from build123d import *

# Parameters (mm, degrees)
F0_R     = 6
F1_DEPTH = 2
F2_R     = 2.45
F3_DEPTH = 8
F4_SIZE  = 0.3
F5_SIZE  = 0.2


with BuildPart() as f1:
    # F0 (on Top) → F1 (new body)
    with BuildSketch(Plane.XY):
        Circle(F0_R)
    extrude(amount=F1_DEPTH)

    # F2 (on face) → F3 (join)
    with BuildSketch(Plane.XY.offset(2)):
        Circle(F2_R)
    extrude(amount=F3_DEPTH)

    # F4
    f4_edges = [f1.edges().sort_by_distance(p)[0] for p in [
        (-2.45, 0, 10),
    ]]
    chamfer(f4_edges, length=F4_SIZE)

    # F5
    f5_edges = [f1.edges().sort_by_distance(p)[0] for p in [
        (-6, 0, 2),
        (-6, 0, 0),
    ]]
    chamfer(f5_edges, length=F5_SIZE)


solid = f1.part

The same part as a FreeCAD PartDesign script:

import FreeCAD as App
import Part
import Sketcher
Q = App.Units.Quantity


def edges_at(feature, points):
    """Names of the edges that pass closest to the given points."""
    edges = feature.Shape.Edges
    near = lambda p: min(range(len(edges)), key=lambda i: edges[i].distToShape(Part.Vertex(*p))[0])
    return sorted({f"Edge{near(p) + 1}" for p in points})

doc = App.newDocument("Part")
body = doc.addObject("PartDesign::Body", "Body")

sketch1 = doc.addObject("Sketcher::SketchObject", "Sketch")
body.addObject(sketch1)
sketch1.AttachmentSupport = (doc.XY_Plane, [""])
sketch1.MapMode = "FlatFace"
sketch1.addGeometry(Part.Circle(App.Vector(0, 0, 0), App.Vector(0, 0, 1), 6), False)
sketch1.addConstraint([
    Sketcher.Constraint("Coincident", 0, 3, -1, 1),
    Sketcher.Constraint("Diameter", 0, Q("12 mm")),
])
pad1 = doc.addObject("PartDesign::Pad", "Pad")
body.addObject(pad1)
pad1.Profile = sketch1
pad1.Length = 2

sketch2 = doc.addObject("Sketcher::SketchObject", "Sketch001")
body.addObject(sketch2)
sketch2.AttachmentSupport = (doc.XY_Plane, [""])
sketch2.MapMode = "FlatFace"
sketch2.AttachmentOffset = App.Placement(App.Vector(0, 0, 2), App.Rotation())
sketch2.addGeometry(Part.Circle(App.Vector(0, 0, 0), App.Vector(0, 0, 1), 2.5), False)
sketch2.addConstraint([
    Sketcher.Constraint("Coincident", 0, 3, -1, 1),
    Sketcher.Constraint("Diameter", 0, Q("4.9 mm")),
])
pad2 = doc.addObject("PartDesign::Pad", "Pad001")
body.addObject(pad2)
pad2.Profile = sketch2
pad2.Length = 8
doc.recompute()

chamfer = doc.addObject("PartDesign::Chamfer", "Chamfer")
body.addObject(chamfer)
chamfer.Base = (pad2, edges_at(pad2, [(-2.45, 0, 10)]))
chamfer.Size = 0.3
doc.recompute()

chamfer2 = doc.addObject("PartDesign::Chamfer", "Chamfer001")
body.addObject(chamfer2)
chamfer2.Base = (chamfer, edges_at(chamfer, [(-6, 0, 2), (-6, 0, 0)]))
chamfer2.Size = 0.2

doc.recompute()
